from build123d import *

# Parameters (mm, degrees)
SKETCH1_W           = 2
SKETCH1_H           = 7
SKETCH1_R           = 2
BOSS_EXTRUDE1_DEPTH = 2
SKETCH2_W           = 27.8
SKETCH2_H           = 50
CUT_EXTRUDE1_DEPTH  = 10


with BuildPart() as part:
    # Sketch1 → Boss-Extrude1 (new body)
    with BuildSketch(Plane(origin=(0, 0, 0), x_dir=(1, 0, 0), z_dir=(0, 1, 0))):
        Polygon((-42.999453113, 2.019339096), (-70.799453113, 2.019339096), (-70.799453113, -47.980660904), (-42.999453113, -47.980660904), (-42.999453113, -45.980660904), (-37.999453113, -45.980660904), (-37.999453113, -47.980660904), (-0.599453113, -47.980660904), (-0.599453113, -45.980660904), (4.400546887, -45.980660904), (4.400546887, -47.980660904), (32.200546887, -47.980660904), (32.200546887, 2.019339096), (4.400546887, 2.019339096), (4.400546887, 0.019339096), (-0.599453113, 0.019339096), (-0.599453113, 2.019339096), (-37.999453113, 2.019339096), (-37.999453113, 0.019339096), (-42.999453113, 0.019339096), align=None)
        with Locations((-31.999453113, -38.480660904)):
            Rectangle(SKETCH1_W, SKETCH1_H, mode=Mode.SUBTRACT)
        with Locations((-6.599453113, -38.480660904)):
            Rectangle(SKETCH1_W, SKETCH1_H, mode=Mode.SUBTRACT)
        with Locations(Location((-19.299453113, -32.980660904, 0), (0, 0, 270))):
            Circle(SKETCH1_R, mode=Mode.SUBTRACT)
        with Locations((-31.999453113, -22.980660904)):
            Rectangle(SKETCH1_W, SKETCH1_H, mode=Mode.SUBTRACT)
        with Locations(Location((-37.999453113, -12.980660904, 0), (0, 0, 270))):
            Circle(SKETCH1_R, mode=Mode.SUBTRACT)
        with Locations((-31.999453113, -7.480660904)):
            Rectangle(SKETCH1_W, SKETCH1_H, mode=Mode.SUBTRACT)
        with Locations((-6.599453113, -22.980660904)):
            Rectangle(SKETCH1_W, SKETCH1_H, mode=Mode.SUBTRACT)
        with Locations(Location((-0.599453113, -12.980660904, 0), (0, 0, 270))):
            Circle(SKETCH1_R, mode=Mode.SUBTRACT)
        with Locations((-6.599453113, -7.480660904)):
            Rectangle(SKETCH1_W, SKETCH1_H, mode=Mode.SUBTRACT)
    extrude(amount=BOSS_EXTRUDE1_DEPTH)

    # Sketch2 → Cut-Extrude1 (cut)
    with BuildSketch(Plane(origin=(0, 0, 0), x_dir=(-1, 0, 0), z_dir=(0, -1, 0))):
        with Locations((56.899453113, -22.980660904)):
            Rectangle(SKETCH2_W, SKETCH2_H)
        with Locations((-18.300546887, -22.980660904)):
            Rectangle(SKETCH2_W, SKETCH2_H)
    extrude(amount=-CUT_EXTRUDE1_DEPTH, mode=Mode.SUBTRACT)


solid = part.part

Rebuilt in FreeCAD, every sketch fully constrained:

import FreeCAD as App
import Part
import Sketcher
from FreeCAD import Vector
Q = App.Units.Quantity

doc = App.newDocument("Part")
body = doc.addObject("PartDesign::Body", "Body")

# Sketch on XZ plane
sketch1 = body.newObject("Sketcher::SketchObject", "Sketch")
sketch1.AttachmentSupport = (doc.getObject("XZ_Plane"), [""])
sketch1.MapMode = "FlatFace"
sketch1.addGeometry(Part.LineSegment(Vector(-42.999453, -2.019339, 0), Vector(-70.799453, -2.019339, 0)), False)
sketch1.addGeometry(Part.LineSegment(Vector(-70.799453, -2.019339, 0), Vector(-70.799453, 47.980661, 0)), False)
sketch1.addGeometry(Part.LineSegment(Vector(-70.799453, 47.980661, 0), Vector(-42.999453, 47.980661, 0)), False)
sketch1.addGeometry(Part.LineSegment(Vector(-42.999453, 47.980661, 0), Vector(-42.999453, 45.980661, 0)), False)
sketch1.addGeometry(Part.LineSegment(Vector(-42.999453, 45.980661, 0), Vector(-37.999453, 45.980661, 0)), False)
sketch1.addGeometry(Part.LineSegment(Vector(-37.999453, 45.980661, 0), Vector(-37.999453, 47.980661, 0)), False)
sketch1.addGeometry(Part.LineSegment(Vector(-37.999453, 47.980661, 0), Vector(-0.599453, 47.980661, 0)), False)
sketch1.addGeometry(Part.LineSegment(Vector(-0.599453, 47.980661, 0), Vector(-0.599453, 45.980661, 0)), False)
sketch1.addGeometry(Part.LineSegment(Vector(-0.599453, 45.980661, 0), Vector(4.400547, 45.980661, 0)), False)
sketch1.addGeometry(Part.LineSegment(Vector(4.400547, 45.980661, 0), Vector(4.400547, 47.980661, 0)), False)
sketch1.addGeometry(Part.LineSegment(Vector(4.400547, 47.980661, 0), Vector(32.200547, 47.980661, 0)), False)
sketch1.addGeometry(Part.LineSegment(Vector(32.200547, 47.980661, 0), Vector(32.200547, -2.019339, 0)), False)
sketch1.addGeometry(Part.LineSegment(Vector(32.200547, -2.019339, 0), Vector(4.400547, -2.019339, 0)), False)
sketch1.addGeometry(Part.LineSegment(Vector(4.400547, -2.019339, 0), Vector(4.400547, -0.019339, 0)), False)
sketch1.addGeometry(Part.LineSegment(Vector(4.400547, -0.019339, 0), Vector(-0.599453, -0.019339, 0)), False)
sketch1.addGeometry(Part.LineSegment(Vector(-0.599453, -0.019339, 0), Vector(-0.599453, -2.019339, 0)), False)
sketch1.addGeometry(Part.LineSegment(Vector(-0.599453, -2.019339, 0), Vector(-37.999453, -2.019339, 0)), False)
sketch1.addGeometry(Part.LineSegment(Vector(-37.999453, -2.019339, 0), Vector(-37.999453, -0.019339, 0)), False)
sketch1.addGeometry(Part.LineSegment(Vector(-37.999453, -0.019339, 0), Vector(-42.999453, -0.019339, 0)), False)
sketch1.addGeometry(Part.LineSegment(Vector(-42.999453, -0.019339, 0), Vector(-42.999453, -2.019339, 0)), False)
sketch1.addGeometry(Part.LineSegment(Vector(-30.999453, 41.980661, 0), Vector(-32.999453, 41.980661, 0)), False)
sketch1.addGeometry(Part.LineSegment(Vector(-32.999453, 41.980661, 0), Vector(-32.999453, 34.980661, 0)), False)
sketch1.addGeometry(Part.LineSegment(Vector(-32.999453, 34.980661, 0), Vector(-30.999453, 34.980661, 0)), False)
sketch1.addGeometry(Part.LineSegment(Vector(-30.999453, 34.980661, 0), Vector(-30.999453, 41.980661, 0)), False)
sketch1.addGeometry(Part.LineSegment(Vector(-30.999453, 26.480661, 0), Vector(-32.999453, 26.480661, 0)), False)
sketch1.addGeometry(Part.LineSegment(Vector(-32.999453, 26.480661, 0), Vector(-32.999453, 19.480661, 0)), False)
sketch1.addGeometry(Part.LineSegment(Vector(-32.999453, 19.480661, 0), Vector(-30.999453, 19.480661, 0)), False)
sketch1.addGeometry(Part.LineSegment(Vector(-30.999453, 19.480661, 0), Vector(-30.999453, 26.480661, 0)), False)
sketch1.addGeometry(Part.Circle(Vector(-19.299453, 32.980661, 0), Vector(0, 0, 1), 2), False)
sketch1.addGeometry(Part.LineSegment(Vector(-5.599453, 41.980661, 0), Vector(-7.599453, 41.980661, 0)), False)
sketch1.addGeometry(Part.LineSegment(Vector(-7.599453, 41.980661, 0), Vector(-7.599453, 34.980661, 0)), False)
sketch1.addGeometry(Part.LineSegment(Vector(-7.599453, 34.980661, 0), Vector(-5.599453, 34.980661, 0)), False)
sketch1.addGeometry(Part.LineSegment(Vector(-5.599453, 34.980661, 0), Vector(-5.599453, 41.980661, 0)), False)
sketch1.addGeometry(Part.LineSegment(Vector(-5.599453, 26.480661, 0), Vector(-7.599453, 26.480661, 0)), False)
sketch1.addGeometry(Part.LineSegment(Vector(-7.599453, 26.480661, 0), Vector(-7.599453, 19.480661, 0)), False)
sketch1.addGeometry(Part.LineSegment(Vector(-7.599453, 19.480661, 0), Vector(-5.599453, 19.480661, 0)), False)
sketch1.addGeometry(Part.LineSegment(Vector(-5.599453, 19.480661, 0), Vector(-5.599453, 26.480661, 0)), False)
sketch1.addGeometry(Part.Circle(Vector(-37.999453, 12.980661, 0), Vector(0, 0, 1), 2), False)
sketch1.addGeometry(Part.LineSegment(Vector(-30.999453, 10.980661, 0), Vector(-32.999453, 10.980661, 0)), False)
sketch1.addGeometry(Part.LineSegment(Vector(-32.999453, 10.980661, 0), Vector(-32.999453, 3.980661, 0)), False)
sketch1.addGeometry(Part.LineSegment(Vector(-32.999453, 3.980661, 0), Vector(-30.999453, 3.980661, 0)), False)
sketch1.addGeometry(Part.LineSegment(Vector(-30.999453, 3.980661, 0), Vector(-30.999453, 10.980661, 0)), False)
sketch1.addGeometry(Part.Circle(Vector(-0.599453, 12.980661, 0), Vector(0, 0, 1), 2), False)
sketch1.addGeometry(Part.LineSegment(Vector(-5.599453, 10.980661, 0), Vector(-7.599453, 10.980661, 0)), False)
sketch1.addGeometry(Part.LineSegment(Vector(-7.599453, 10.980661, 0), Vector(-7.599453, 3.980661, 0)), False)
sketch1.addGeometry(Part.LineSegment(Vector(-7.599453, 3.980661, 0), Vector(-5.599453, 3.980661, 0)), False)
sketch1.addGeometry(Part.LineSegment(Vector(-5.599453, 3.980661, 0), Vector(-5.599453, 10.980661, 0)), False)
sketch1.addConstraint(Sketcher.Constraint("Coincident", 0, 2, 1, 1))
sketch1.addConstraint(Sketcher.Constraint("Coincident", 1, 2, 2, 1))
sketch1.addConstraint(Sketcher.Constraint("Coincident", 2, 2, 3, 1))
sketch1.addConstraint(Sketcher.Constraint("Coincident", 3, 2, 4, 1))
sketch1.addConstraint(Sketcher.Constraint("Coincident", 4, 2, 5, 1))
sketch1.addConstraint(Sketcher.Constraint("Coincident", 5, 2, 6, 1))
sketch1.addConstraint(Sketcher.Constraint("Coincident", 6, 2, 7, 1))
sketch1.addConstraint(Sketcher.Constraint("Coincident", 7, 2, 8, 1))
sketch1.addConstraint(Sketcher.Constraint("Coincident", 8, 2, 9, 1))
sketch1.addConstraint(Sketcher.Constraint("Coincident", 9, 2, 10, 1))
sketch1.addConstraint(Sketcher.Constraint("Coincident", 10, 2, 11, 1))
sketch1.addConstraint(Sketcher.Constraint("Coincident", 11, 2, 12, 1))
sketch1.addConstraint(Sketcher.Constraint("Coincident", 12, 2, 13, 1))
sketch1.addConstraint(Sketcher.Constraint("Coincident", 13, 2, 14, 1))
sketch1.addConstraint(Sketcher.Constraint("Coincident", 14, 2, 15, 1))
sketch1.addConstraint(Sketcher.Constraint("Coincident", 15, 2, 16, 1))
sketch1.addConstraint(Sketcher.Constraint("Coincident", 16, 2, 17, 1))
sketch1.addConstraint(Sketcher.Constraint("Coincident", 17, 2, 18, 1))
sketch1.addConstraint(Sketcher.Constraint("Coincident", 18, 2, 19, 1))
sketch1.addConstraint(Sketcher.Constraint("Coincident", 19, 2, 0, 1))
sketch1.addConstraint(Sketcher.Constraint("Coincident", 20, 2, 21, 1))
sketch1.addConstraint(Sketcher.Constraint("Coincident", 21, 2, 22, 1))
sketch1.addConstraint(Sketcher.Constraint("Coincident", 22, 2, 23, 1))
sketch1.addConstraint(Sketcher.Constraint("Coincident", 23, 2, 20, 1))
sketch1.addConstraint(Sketcher.Constraint("Coincident", 24, 2, 25, 1))
sketch1.addConstraint(Sketcher.Constraint("Coincident", 25, 2, 26, 1))
sketch1.addConstraint(Sketcher.Constraint("Coincident", 26, 2, 27, 1))
sketch1.addConstraint(Sketcher.Constraint("Coincident", 27, 2, 24, 1))
sketch1.addConstraint(Sketcher.Constraint("Coincident", 29, 2, 30, 1))
sketch1.addConstraint(Sketcher.Constraint("Coincident", 30, 2, 31, 1))
sketch1.addConstraint(Sketcher.Constraint("Coincident", 31, 2, 32, 1))
sketch1.addConstraint(Sketcher.Constraint("Coincident", 32, 2, 29, 1))
sketch1.addConstraint(Sketcher.Constraint("Coincident", 33, 2, 34, 1))
sketch1.addConstraint(Sketcher.Constraint("Coincident", 34, 2, 35, 1))
sketch1.addConstraint(Sketcher.Constraint("Coincident", 35, 2, 36, 1))
sketch1.addConstraint(Sketcher.Constraint("Coincident", 36, 2, 33, 1))
sketch1.addConstraint(Sketcher.Constraint("Coincident", 38, 2, 39, 1))
sketch1.addConstraint(Sketcher.Constraint("Coincident", 39, 2, 40, 1))
sketch1.addConstraint(Sketcher.Constraint("Coincident", 40, 2, 41, 1))
sketch1.addConstraint(Sketcher.Constraint("Coincident", 41, 2, 38, 1))
sketch1.addConstraint(Sketcher.Constraint("Coincident", 43, 2, 44, 1))
sketch1.addConstraint(Sketcher.Constraint("Coincident", 44, 2, 45, 1))
sketch1.addConstraint(Sketcher.Constraint("Coincident", 45, 2, 46, 1))
sketch1.addConstraint(Sketcher.Constraint("Coincident", 46, 2, 43, 1))
sketch1.addConstraint(Sketcher.Constraint("Horizontal", 0))
sketch1.addConstraint(Sketcher.Constraint("Vertical", 1))
sketch1.addConstraint(Sketcher.Constraint("Horizontal", 2))
sketch1.addConstraint(Sketcher.Constraint("Vertical", 3))
sketch1.addConstraint(Sketcher.Constraint("Horizontal", 4))
sketch1.addConstraint(Sketcher.Constraint("Vertical", 5))
sketch1.addConstraint(Sketcher.Constraint("Horizontal", 6))
sketch1.addConstraint(Sketcher.Constraint("Vertical", 7))
sketch1.addConstraint(Sketcher.Constraint("Horizontal", 8))
sketch1.addConstraint(Sketcher.Constraint("Vertical", 9))
sketch1.addConstraint(Sketcher.Constraint("Horizontal", 10))
sketch1.addConstraint(Sketcher.Constraint("Vertical", 11))
sketch1.addConstraint(Sketcher.Constraint("Horizontal", 12))
sketch1.addConstraint(Sketcher.Constraint("Vertical", 13))
sketch1.addConstraint(Sketcher.Constraint("Horizontal", 14))
sketch1.addConstraint(Sketcher.Constraint("Vertical", 15))
sketch1.addConstraint(Sketcher.Constraint("Horizontal", 16))
sketch1.addConstraint(Sketcher.Constraint("Vertical", 17))
sketch1.addConstraint(Sketcher.Constraint("Horizontal", 18))
sketch1.addConstraint(Sketcher.Constraint("Vertical", 19))
sketch1.addConstraint(Sketcher.Constraint("Horizontal", 20))
sketch1.addConstraint(Sketcher.Constraint("Vertical", 21))
sketch1.addConstraint(Sketcher.Constraint("Horizontal", 22))
sketch1.addConstraint(Sketcher.Constraint("Vertical", 23))
sketch1.addConstraint(Sketcher.Constraint("Horizontal", 24))
sketch1.addConstraint(Sketcher.Constraint("Vertical", 25))
sketch1.addConstraint(Sketcher.Constraint("Horizontal", 26))
sketch1.addConstraint(Sketcher.Constraint("Vertical", 27))
sketch1.addConstraint(Sketcher.Constraint("Horizontal", 29))
sketch1.addConstraint(Sketcher.Constraint("Vertical", 30))
sketch1.addConstraint(Sketcher.Constraint("Horizontal", 31))
sketch1.addConstraint(Sketcher.Constraint("Vertical", 32))
sketch1.addConstraint(Sketcher.Constraint("Horizontal", 33))
sketch1.addConstraint(Sketcher.Constraint("Vertical", 34))
sketch1.addConstraint(Sketcher.Constraint("Horizontal", 35))
sketch1.addConstraint(Sketcher.Constraint("Vertical", 36))
sketch1.addConstraint(Sketcher.Constraint("Horizontal", 38))
sketch1.addConstraint(Sketcher.Constraint("Vertical", 39))
sketch1.addConstraint(Sketcher.Constraint("Horizontal", 40))
sketch1.addConstraint(Sketcher.Constraint("Vertical", 41))
sketch1.addConstraint(Sketcher.Constraint("Horizontal", 43))
sketch1.addConstraint(Sketcher.Constraint("Vertical", 44))
sketch1.addConstraint(Sketcher.Constraint("Horizontal", 45))
sketch1.addConstraint(Sketcher.Constraint("Vertical", 46))
sketch1.addConstraint(Sketcher.Constraint("Equal", 28, 37))
sketch1.addConstraint(Sketcher.Constraint("Equal", 37, 42))
sketch1.addConstraint(Sketcher.Constraint("Horizontal", 37, 3, 42, 3))
sketch1.addConstraint(Sketcher.Constraint("Horizontal", 2, 2, 5, 2))
sketch1.addConstraint(Sketcher.Constraint("Horizontal", 4, 2, 7, 2))
sketch1.addConstraint(Sketcher.Constraint("Horizontal", 6, 2, 9, 2))
sketch1.addConstraint(Sketcher.Constraint("Horizontal", 0, 2, 11, 2))
sketch1.addConstraint(Sketcher.Constraint("Horizontal", 12, 2, 15, 2))
sketch1.addConstraint(Sketcher.Constraint("Horizontal", 14, 2, 17, 2))
sketch1.addConstraint(Sketcher.Constraint("Horizontal", 23, 2, 29, 2))
sketch1.addConstraint(Sketcher.Constraint("Horizontal", 22, 2, 30, 2))
sketch1.addConstraint(Sketcher.Constraint("Horizontal", 27, 2, 33, 2))
sketch1.addConstraint(Sketcher.Constraint("Horizontal", 26, 2, 34, 2))
sketch1.addConstraint(Sketcher.Constraint("Horizontal", 41, 2, 43, 2))
sketch1.addConstraint(Sketcher.Constraint("Horizontal", 40, 2, 44, 2))
sketch1.addConstraint(Sketcher.Constraint("Vertical", 37, 3, 4, 2))
sketch1.addConstraint(Sketcher.Constraint("Vertical", 42, 3, 6, 2))
sketch1.addConstraint(Sketcher.Constraint("Vertical", 9, 2, 12, 2))
sketch1.addConstraint(Sketcher.Constraint("Vertical", 7, 2, 14, 2))
sketch1.addConstraint(Sketcher.Constraint("Vertical", 5, 2, 16, 2))
sketch1.addConstraint(Sketcher.Constraint("Vertical", 3, 2, 18, 2))
sketch1.addConstraint(Sketcher.Constraint("Vertical", 21, 2, 24, 2))
sketch1.addConstraint(Sketcher.Constraint("Vertical", 23, 2, 26, 2))
sketch1.addConstraint(Sketcher.Constraint("Vertical", 30, 2, 33, 2))
sketch1.addConstraint(Sketcher.Constraint("Vertical", 32, 2, 35, 2))
sketch1.addConstraint(Sketcher.Constraint("Vertical", 25, 2, 38, 2))
sketch1.addConstraint(Sketcher.Constraint("Vertical", 27, 2, 40, 2))
sketch1.addConstraint(Sketcher.Constraint("Vertical", 34, 2, 43, 2))
sketch1.addConstraint(Sketcher.Constraint("Vertical", 36, 2, 45, 2))
sketch1.addConstraint(Sketcher.Constraint("Equal", 4, 8))
sketch1.addConstraint(Sketcher.Constraint("Equal", 2, 10))
sketch1.addConstraint(Sketcher.Constraint("Equal", 26, 29))
sketch1.addConstraint(Sketcher.Constraint("Equal", 45, 3))
sketch1.addConstraint(Sketcher.Constraint("Equal", 9, 13))
sketch1.addConstraint(Sketcher.Constraint("Equal", 23, 25))
sketch1.addConstraint(Sketcher.Constraint("Equal", 36, 39))
sketch1.addConstraint(Sketcher.Constraint("Diameter", 28, Q("4 mm")))
sketch1.addConstraint(Sketcher.Constraint("DistanceX", 4, 1, 4, 2, Q("5 mm")))
sketch1.addConstraint(Sketcher.Constraint("DistanceX", 20, 2, 20, 1, Q("2 mm")))
sketch1.addConstraint(Sketcher.Constraint("DistanceY", 1, 1, 1, 2, Q("50 mm")))
sketch1.addConstraint(Sketcher.Constraint("DistanceY", 21, 2, 21, 1, Q("7 mm")))
sketch1.addConstraint(Sketcher.Constraint("DistanceX", 0, 2, 0, 1, Q("27.8 mm")))
sketch1.addConstraint(Sketcher.Constraint("DistanceX", 6, 1, 6, 2, Q("37.4 mm")))
sketch1.addConstraint(Sketcher.Constraint("DistanceY", 37, 3, 28, 3, Q("20 mm")))
sketch1.addConstraint(Sketcher.Constraint("DistanceY", 0, 2, 37, 3, Q("15 mm")))
sketch1.addConstraint(Sketcher.Constraint("DistanceX", 4, 2, 20, 2, Q("5 mm")))
sketch1.addConstraint(Sketcher.Constraint("DistanceY", 20, 2, 4, 2, Q("4 mm")))
sketch1.addConstraint(Sketcher.Constraint("DistanceX", 29, 2, 7, 2, Q("7 mm")))
sketch1.addConstraint(Sketcher.Constraint("DistanceY", 38, 2, 37, 3, Q("2 mm")))
sketch1.addConstraint(Sketcher.Constraint("DistanceX", 37, 3, 28, 3, Q("18.7 mm")))
sketch1.addConstraint(Sketcher.Constraint("DistanceY", 24, 2, 21, 2, Q("8.5 mm")))
sketch1.addConstraint(Sketcher.Constraint("DistanceY", -1, 1, 28, 3, Q("32.980661 mm")))
sketch1.addConstraint(Sketcher.Constraint("DistanceX", 28, 3, -1, 1, Q("19.299453 mm")))
pad1 = body.newObject("PartDesign::Pad", "Pad")
pad1.Profile = sketch1
pad1.Length = 2
pad1.Reversed = True

# Sketch on XZ plane
sketch2 = body.newObject("Sketcher::SketchObject", "Sketch001")
sketch2.AttachmentSupport = (doc.getObject("XZ_Plane"), [""])
sketch2.MapMode = "FlatFace"
sketch2.addGeometry(Part.LineSegment(Vector(-42.999453, -2.019339, 0), Vector(-42.999453, 47.980661, 0)), False)
sketch2.addGeometry(Part.LineSegment(Vector(-42.999453, 47.980661, 0), Vector(-70.799453, 47.980661, 0)), False)
sketch2.addGeometry(Part.LineSegment(Vector(-70.799453, 47.980661, 0), Vector(-70.799453, -2.019339, 0)), False)
sketch2.addGeometry(Part.LineSegment(Vector(-70.799453, -2.019339, 0), Vector(-42.999453, -2.019339, 0)), False)
sketch2.addGeometry(Part.LineSegment(Vector(32.200547, -2.019339, 0), Vector(32.200547, 47.980661, 0)), False)
sketch2.addGeometry(Part.LineSegment(Vector(32.200547, 47.980661, 0), Vector(4.400547, 47.980661, 0)), False)
sketch2.addGeometry(Part.LineSegment(Vector(4.400547, 47.980661, 0), Vector(4.400547, -2.019339, 0)), False)
sketch2.addGeometry(Part.LineSegment(Vector(4.400547, -2.019339, 0), Vector(32.200547, -2.019339, 0)), False)
sketch2.addConstraint(Sketcher.Constraint("Coincident", 0, 2, 1, 1))
sketch2.addConstraint(Sketcher.Constraint("Coincident", 1, 2, 2, 1))
sketch2.addConstraint(Sketcher.Constraint("Coincident", 2, 2, 3, 1))
sketch2.addConstraint(Sketcher.Constraint("Coincident", 3, 2, 0, 1))
sketch2.addConstraint(Sketcher.Constraint("Coincident", 4, 2, 5, 1))
sketch2.addConstraint(Sketcher.Constraint("Coincident", 5, 2, 6, 1))
sketch2.addConstraint(Sketcher.Constraint("Coincident", 6, 2, 7, 1))
sketch2.addConstraint(Sketcher.Constraint("Coincident", 7, 2, 4, 1))
sketch2.addConstraint(Sketcher.Constraint("Vertical", 0))
sketch2.addConstraint(Sketcher.Constraint("Horizontal", 1))
sketch2.addConstraint(Sketcher.Constraint("Vertical", 2))
sketch2.addConstraint(Sketcher.Constraint("Horizontal", 3))
sketch2.addConstraint(Sketcher.Constraint("Vertical", 4))
sketch2.addConstraint(Sketcher.Constraint("Horizontal", 5))
sketch2.addConstraint(Sketcher.Constraint("Vertical", 6))
sketch2.addConstraint(Sketcher.Constraint("Horizontal", 7))
sketch2.addConstraint(Sketcher.Constraint("Horizontal", 1, 2, 4, 2))
sketch2.addConstraint(Sketcher.Constraint("Horizontal", 3, 2, 6, 2))
sketch2.addConstraint(Sketcher.Constraint("Equal", 3, 5))
sketch2.addConstraint(Sketcher.Constraint("DistanceY", 0, 1, 0, 2, Q("50 mm")))
sketch2.addConstraint(Sketcher.Constraint("DistanceX", 1, 2, 1, 1, Q("27.8 mm")))
sketch2.addConstraint(Sketcher.Constraint("DistanceX", 1, 2, 4, 2, Q("103 mm")))
sketch2.addConstraint(Sketcher.Constraint("DistanceY", -1, 1, 0, 2, Q("47.980661 mm")))
sketch2.addConstraint(Sketcher.Constraint("DistanceX", 0, 2, -1, 1, Q("42.999453 mm")))
pocket1 = body.newObject("PartDesign::Pocket", "Pocket")
pocket1.Profile = sketch2
pocket1.Length = 10

doc.recompute()
